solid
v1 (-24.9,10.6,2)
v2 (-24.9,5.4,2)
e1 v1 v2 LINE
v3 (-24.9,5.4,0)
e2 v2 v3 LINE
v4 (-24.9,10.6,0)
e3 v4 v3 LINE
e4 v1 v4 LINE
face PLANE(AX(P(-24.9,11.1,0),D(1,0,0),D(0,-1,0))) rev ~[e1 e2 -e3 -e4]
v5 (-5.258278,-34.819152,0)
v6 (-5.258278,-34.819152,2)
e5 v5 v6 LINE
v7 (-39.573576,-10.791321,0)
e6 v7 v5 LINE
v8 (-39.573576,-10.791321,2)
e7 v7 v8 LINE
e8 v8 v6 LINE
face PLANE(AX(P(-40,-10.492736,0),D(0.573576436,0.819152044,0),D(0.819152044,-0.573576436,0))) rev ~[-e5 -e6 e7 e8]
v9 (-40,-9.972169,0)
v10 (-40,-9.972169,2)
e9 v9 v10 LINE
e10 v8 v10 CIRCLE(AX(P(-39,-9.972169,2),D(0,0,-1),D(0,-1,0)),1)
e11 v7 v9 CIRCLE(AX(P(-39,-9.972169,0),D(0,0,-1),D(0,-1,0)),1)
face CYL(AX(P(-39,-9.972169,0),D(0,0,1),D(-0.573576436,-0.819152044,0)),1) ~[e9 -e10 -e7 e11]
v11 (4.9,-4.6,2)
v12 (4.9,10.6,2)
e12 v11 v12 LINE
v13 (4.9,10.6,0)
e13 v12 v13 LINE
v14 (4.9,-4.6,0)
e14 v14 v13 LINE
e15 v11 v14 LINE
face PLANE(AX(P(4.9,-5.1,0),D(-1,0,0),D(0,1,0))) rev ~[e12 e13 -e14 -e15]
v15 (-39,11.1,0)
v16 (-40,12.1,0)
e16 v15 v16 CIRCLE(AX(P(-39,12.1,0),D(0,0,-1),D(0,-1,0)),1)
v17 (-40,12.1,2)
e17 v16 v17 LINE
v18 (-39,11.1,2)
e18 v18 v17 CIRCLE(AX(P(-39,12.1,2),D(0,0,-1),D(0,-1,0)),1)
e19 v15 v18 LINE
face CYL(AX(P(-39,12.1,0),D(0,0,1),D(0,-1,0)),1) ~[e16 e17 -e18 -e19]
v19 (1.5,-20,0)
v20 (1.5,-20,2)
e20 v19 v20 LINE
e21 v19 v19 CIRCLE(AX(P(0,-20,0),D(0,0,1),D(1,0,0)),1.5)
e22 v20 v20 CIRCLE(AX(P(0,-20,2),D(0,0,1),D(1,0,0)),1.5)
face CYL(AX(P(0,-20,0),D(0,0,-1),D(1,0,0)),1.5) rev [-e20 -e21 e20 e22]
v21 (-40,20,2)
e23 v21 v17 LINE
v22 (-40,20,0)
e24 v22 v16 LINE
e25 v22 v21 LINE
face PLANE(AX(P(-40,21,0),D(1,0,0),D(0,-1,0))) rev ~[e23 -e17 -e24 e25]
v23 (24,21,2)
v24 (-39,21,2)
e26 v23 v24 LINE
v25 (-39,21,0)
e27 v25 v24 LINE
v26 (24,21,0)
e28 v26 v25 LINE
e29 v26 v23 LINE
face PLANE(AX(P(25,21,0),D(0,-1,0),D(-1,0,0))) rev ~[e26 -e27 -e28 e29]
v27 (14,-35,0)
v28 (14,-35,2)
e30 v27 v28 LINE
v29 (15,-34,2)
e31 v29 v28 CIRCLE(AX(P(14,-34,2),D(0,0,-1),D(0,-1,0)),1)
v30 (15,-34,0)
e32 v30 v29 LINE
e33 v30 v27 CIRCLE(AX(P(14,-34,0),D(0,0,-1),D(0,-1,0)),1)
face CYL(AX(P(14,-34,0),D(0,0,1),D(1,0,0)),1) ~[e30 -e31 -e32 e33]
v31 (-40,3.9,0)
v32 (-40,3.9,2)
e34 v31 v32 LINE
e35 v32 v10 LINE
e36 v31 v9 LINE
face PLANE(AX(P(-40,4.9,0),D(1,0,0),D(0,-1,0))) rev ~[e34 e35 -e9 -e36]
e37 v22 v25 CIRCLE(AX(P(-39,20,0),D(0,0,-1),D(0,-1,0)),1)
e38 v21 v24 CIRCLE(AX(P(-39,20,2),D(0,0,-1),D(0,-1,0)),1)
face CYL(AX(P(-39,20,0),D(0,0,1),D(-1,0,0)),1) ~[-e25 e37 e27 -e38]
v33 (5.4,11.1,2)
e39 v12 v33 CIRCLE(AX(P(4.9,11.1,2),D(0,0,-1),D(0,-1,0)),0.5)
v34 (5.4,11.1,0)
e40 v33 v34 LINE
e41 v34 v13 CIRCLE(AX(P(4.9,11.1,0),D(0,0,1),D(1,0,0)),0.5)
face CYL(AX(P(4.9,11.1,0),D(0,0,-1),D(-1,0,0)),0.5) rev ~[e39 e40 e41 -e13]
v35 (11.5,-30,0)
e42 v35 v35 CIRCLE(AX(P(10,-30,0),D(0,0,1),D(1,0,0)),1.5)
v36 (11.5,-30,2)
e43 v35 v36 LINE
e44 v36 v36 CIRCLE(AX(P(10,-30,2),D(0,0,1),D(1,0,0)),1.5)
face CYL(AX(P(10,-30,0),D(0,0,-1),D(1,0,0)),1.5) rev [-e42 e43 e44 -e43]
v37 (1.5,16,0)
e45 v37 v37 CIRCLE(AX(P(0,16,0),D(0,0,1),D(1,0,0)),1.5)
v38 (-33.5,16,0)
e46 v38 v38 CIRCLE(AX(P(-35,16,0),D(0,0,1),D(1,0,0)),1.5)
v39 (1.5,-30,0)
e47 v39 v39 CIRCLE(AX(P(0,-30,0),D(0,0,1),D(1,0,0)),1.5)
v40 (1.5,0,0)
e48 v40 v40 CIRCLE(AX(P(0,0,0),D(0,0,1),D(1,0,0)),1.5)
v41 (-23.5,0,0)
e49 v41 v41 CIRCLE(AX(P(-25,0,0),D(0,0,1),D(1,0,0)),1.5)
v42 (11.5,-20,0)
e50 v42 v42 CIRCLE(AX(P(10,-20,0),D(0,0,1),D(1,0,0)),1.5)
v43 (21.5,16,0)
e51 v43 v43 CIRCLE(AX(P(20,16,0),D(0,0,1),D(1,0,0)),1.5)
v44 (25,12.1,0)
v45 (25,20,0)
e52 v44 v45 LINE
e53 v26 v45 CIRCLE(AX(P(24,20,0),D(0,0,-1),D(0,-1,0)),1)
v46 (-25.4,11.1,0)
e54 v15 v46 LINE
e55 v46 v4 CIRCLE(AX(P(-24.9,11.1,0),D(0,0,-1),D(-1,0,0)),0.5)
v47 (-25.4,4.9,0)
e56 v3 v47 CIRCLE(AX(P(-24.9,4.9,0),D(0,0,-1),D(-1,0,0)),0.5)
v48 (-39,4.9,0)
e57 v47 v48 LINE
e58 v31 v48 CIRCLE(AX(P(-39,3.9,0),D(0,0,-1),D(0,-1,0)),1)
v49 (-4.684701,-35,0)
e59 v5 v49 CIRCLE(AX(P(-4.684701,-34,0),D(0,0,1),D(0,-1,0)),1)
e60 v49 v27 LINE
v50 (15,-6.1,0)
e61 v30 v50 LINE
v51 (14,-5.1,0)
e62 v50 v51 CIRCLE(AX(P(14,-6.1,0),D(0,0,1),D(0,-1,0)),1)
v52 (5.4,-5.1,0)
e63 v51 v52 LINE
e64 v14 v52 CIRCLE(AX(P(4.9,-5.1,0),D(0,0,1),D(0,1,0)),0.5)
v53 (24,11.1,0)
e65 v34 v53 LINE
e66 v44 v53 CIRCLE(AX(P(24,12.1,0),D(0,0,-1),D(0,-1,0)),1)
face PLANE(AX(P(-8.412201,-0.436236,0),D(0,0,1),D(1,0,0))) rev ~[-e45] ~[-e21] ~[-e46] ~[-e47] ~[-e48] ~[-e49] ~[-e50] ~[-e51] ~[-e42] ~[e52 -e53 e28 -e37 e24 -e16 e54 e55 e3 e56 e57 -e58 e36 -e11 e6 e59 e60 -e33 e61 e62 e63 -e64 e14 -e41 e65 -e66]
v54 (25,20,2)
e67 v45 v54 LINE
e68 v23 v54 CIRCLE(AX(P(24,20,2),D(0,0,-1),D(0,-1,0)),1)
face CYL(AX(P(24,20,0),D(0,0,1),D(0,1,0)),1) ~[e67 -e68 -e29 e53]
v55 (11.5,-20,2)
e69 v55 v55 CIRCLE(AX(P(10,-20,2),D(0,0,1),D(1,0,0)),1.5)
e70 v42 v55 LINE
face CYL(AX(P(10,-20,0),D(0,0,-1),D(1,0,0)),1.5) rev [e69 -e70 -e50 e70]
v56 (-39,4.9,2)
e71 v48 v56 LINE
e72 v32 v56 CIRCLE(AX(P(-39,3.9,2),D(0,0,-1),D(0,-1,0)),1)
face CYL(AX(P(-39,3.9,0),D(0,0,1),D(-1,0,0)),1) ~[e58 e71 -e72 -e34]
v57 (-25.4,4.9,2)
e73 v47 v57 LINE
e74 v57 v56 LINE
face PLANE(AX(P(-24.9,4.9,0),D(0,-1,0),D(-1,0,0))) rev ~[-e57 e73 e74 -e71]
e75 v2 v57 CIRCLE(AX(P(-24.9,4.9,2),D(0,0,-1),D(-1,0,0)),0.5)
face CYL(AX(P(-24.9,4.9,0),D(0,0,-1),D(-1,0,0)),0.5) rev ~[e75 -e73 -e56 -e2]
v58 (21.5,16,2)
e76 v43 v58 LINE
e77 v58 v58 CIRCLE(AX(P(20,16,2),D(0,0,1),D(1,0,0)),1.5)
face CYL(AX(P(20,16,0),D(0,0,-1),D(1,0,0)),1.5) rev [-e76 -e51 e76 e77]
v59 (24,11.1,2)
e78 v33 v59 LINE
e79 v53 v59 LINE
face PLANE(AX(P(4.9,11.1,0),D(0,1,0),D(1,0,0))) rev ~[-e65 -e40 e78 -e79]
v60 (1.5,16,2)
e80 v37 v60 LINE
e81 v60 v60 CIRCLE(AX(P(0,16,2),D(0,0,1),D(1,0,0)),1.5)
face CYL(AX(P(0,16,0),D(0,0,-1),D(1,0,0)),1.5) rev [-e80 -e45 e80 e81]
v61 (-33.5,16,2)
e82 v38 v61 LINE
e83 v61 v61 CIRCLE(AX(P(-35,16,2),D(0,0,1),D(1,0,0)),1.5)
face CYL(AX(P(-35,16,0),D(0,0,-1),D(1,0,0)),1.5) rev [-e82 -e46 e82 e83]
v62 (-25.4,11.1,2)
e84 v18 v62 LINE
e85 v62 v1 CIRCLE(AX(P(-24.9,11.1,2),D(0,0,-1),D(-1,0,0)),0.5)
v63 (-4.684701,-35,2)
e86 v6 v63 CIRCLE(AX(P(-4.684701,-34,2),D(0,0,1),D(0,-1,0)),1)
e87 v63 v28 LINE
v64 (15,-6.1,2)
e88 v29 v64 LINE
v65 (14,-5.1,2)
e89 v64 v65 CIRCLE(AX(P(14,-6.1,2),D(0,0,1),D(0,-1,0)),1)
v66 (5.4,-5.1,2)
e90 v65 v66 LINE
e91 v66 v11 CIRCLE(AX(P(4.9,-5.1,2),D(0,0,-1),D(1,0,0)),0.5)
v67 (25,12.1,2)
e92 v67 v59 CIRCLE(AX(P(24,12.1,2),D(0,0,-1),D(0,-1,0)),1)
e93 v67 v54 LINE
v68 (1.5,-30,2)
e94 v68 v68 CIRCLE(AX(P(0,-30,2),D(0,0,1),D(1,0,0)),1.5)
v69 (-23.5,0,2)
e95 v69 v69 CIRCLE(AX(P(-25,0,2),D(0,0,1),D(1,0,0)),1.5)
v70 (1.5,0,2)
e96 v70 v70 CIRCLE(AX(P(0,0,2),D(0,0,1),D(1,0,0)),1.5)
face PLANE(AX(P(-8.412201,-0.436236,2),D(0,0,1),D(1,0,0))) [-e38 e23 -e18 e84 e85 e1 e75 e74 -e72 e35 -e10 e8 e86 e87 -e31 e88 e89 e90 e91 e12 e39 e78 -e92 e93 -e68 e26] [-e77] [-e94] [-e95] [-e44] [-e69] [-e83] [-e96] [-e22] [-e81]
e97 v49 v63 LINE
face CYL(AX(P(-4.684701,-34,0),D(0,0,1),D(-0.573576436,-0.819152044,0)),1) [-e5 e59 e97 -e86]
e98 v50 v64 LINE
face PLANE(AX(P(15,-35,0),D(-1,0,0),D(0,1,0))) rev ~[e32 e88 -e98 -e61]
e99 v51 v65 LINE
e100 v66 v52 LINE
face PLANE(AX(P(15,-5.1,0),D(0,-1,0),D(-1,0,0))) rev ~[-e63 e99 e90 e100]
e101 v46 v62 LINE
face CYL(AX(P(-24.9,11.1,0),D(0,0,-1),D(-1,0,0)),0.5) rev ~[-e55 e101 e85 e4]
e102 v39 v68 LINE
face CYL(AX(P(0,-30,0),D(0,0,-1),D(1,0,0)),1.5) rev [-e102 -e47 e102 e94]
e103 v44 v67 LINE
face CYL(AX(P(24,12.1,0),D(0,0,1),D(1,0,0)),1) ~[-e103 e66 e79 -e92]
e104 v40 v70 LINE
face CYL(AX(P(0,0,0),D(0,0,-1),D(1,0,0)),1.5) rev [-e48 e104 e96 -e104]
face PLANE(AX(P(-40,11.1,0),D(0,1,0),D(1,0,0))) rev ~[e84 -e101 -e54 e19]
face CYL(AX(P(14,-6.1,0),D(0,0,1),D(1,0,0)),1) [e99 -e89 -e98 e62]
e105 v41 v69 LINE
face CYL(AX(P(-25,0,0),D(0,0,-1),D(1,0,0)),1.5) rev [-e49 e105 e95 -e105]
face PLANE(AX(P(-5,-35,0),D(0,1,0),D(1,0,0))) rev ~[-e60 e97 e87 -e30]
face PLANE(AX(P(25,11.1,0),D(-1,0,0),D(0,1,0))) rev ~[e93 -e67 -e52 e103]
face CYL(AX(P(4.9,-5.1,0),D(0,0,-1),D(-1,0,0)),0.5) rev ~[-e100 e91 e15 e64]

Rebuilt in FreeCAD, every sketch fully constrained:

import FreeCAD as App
import Part
import Sketcher
Q = App.Units.Quantity


def edges_at(feature, points):
    """Names of the edges that pass closest to the given points."""
    edges = feature.Shape.Edges
    near = lambda p: min(range(len(edges)), key=lambda i: edges[i].distToShape(Part.Vertex(*p))[0])
    return sorted({f"Edge{near(p) + 1}" for p in points})

doc = App.newDocument("Part")
body = doc.addObject("PartDesign::Body", "Body")

# Sketch on XY plane
sketch1 = body.newObject("Sketcher::SketchObject", "Sketch")
sketch1.AttachmentSupport = (doc.getObject("XY_Plane"), [""])
sketch1.MapMode = "FlatFace"
sketch1.addGeometry([
    Part.LineSegment(App.Vector(15, -35, 0), App.Vector(15, -5.1, 0)),  # 0
    Part.LineSegment(App.Vector(15, -5.1, 0), App.Vector(4.9, -5.1, 0)),  # 1
    Part.LineSegment(App.Vector(4.9, -5.1, 0), App.Vector(4.9, 11.1, 0)),  # 2
    Part.LineSegment(App.Vector(4.9, 11.1, 0), App.Vector(25, 11.1, 0)),  # 3
    Part.LineSegment(App.Vector(25, 11.1, 0), App.Vector(25, 21, 0)),  # 4
    Part.LineSegment(App.Vector(25, 21, 0), App.Vector(-40, 21, 0)),  # 5
    Part.LineSegment(App.Vector(-40, 21, 0), App.Vector(-40, 11.1, 0)),  # 6
    Part.LineSegment(App.Vector(-40, 11.1, 0), App.Vector(-24.9, 11.1, 0)),  # 7
    Part.LineSegment(App.Vector(-24.9, 11.1, 0), App.Vector(-24.9, 4.9, 0)),  # 8
    Part.LineSegment(App.Vector(-24.9, 4.9, 0), App.Vector(-40, 4.9, 0)),  # 9
    Part.LineSegment(App.Vector(-40, 4.9, 0), App.Vector(-40, -10.492736, 0)),  # 10
    Part.LineSegment(App.Vector(-40, -10.492736, 0), App.Vector(-5, -35, 0)),  # 11
    Part.LineSegment(App.Vector(-5, -35, 0), App.Vector(15, -35, 0)),  # 12
    Part.Circle(App.Vector(0, -30, 0), App.Vector(0, 0, 1), 1.5),  # 13
    Part.Circle(App.Vector(0, -20, 0), App.Vector(0, 0, 1), 1.5),  # 14
    Part.Circle(App.Vector(10, -30, 0), App.Vector(0, 0, 1), 1.5),  # 15
    Part.Circle(App.Vector(10, -20, 0), App.Vector(0, 0, 1), 1.5),  # 16
    Part.Circle(App.Vector(-25, 0, 0), App.Vector(0, 0, 1), 1.5),  # 17
    Part.Circle(App.Vector(-35, 16, 0), App.Vector(0, 0, 1), 1.5),  # 18
    Part.Circle(App.Vector(0, 0, 0), App.Vector(0, 0, 1), 1.5),  # 19
    Part.Circle(App.Vector(0, 16, 0), App.Vector(0, 0, 1), 1.5),  # 20
    Part.Circle(App.Vector(20, 16, 0), App.Vector(0, 0, 1), 1.5),  # 21
], False)
sketch1.addConstraint([
    Sketcher.Constraint("Coincident", 0, 2, 1, 1),
    Sketcher.Constraint("Coincident", 1, 2, 2, 1),
    Sketcher.Constraint("Coincident", 2, 2, 3, 1),
    Sketcher.Constraint("Coincident", 3, 2, 4, 1),
    Sketcher.Constraint("Coincident", 4, 2, 5, 1),
    Sketcher.Constraint("Coincident", 5, 2, 6, 1),
    Sketcher.Constraint("Coincident", 6, 2, 7, 1),
    Sketcher.Constraint("Coincident", 7, 2, 8, 1),
    Sketcher.Constraint("Coincident", 8, 2, 9, 1),
    Sketcher.Constraint("Coincident", 9, 2, 10, 1),
    Sketcher.Constraint("Coincident", 10, 2, 11, 1),
    Sketcher.Constraint("Coincident", 11, 2, 12, 1),
    Sketcher.Constraint("Coincident", 12, 2, 0, 1),
    Sketcher.Constraint("Vertical", 0),
    Sketcher.Constraint("Horizontal", 1),
    Sketcher.Constraint("Vertical", 2),
    Sketcher.Constraint("Horizontal", 3),
    Sketcher.Constraint("Vertical", 4),
    Sketcher.Constraint("Horizontal", 5),
    Sketcher.Constraint("Vertical", 6),
    Sketcher.Constraint("Horizontal", 7),
    Sketcher.Constraint("Vertical", 8),
    Sketcher.Constraint("Horizontal", 9),
    Sketcher.Constraint("Vertical", 10),
    Sketcher.Constraint("Horizontal", 12),
    Sketcher.Constraint("Coincident", 19, 3, -1, 1),
    Sketcher.Constraint("Equal", 13, 14),
    Sketcher.Constraint("Equal", 14, 15),
    Sketcher.Constraint("Equal", 15, 16),
    Sketcher.Constraint("Equal", 16, 17),
    Sketcher.Constraint("Equal", 17, 18),
    Sketcher.Constraint("Equal", 18, 19),
    Sketcher.Constraint("Equal", 19, 20),
    Sketcher.Constraint("Equal", 20, 21),
    Sketcher.Constraint("PointOnObject", 13, 3, -2),
    Sketcher.Constraint("PointOnObject", 14, 3, -2),
    Sketcher.Constraint("PointOnObject", 17, 3, -1),
    Sketcher.Constraint("PointOnObject", 20, 3, -2),
    Sketcher.Constraint("Horizontal", 13, 3, 15, 3),
    Sketcher.Constraint("Horizontal", 14, 3, 16, 3),
    Sketcher.Constraint("Horizontal", 18, 3, 20, 3),
    Sketcher.Constraint("Horizontal", 20, 3, 21, 3),
    Sketcher.Constraint("Horizontal", 3, 2, 6, 2),
    Sketcher.Constraint("Vertical", 15, 3, 16, 3),
    Sketcher.Constraint("Vertical", 6, 2, 9, 2),
    Sketcher.Constraint("Diameter", 13, Q("3 mm")),
    Sketcher.Constraint("DistanceX", 5, 2, 5, 1, Q("65 mm")),
    Sketcher.Constraint("DistanceX", 12, 1, 12, 2, Q("20 mm")),
    Sketcher.Constraint("Angle", 11, Q("-35 deg")),
    Sketcher.Constraint("DistanceX", 1, 2, 1, 1, Q("10.1 mm")),
    Sketcher.Constraint("DistanceX", 3, 1, 3, 2, Q("20.1 mm")),
    Sketcher.Constraint("DistanceX", 7, 1, 7, 2, Q("15.1 mm")),
    Sketcher.Constraint("DistanceY", 0, 1, 0, 2, Q("29.9 mm")),
    Sketcher.Constraint("DistanceY", 2, 1, 2, 2, Q("16.2 mm")),
    Sketcher.Constraint("DistanceY", 4, 1, 4, 2, Q("9.9 mm")),
    Sketcher.Constraint("DistanceY", 8, 2, 8, 1, Q("6.2 mm")),
    Sketcher.Constraint("DistanceY", 13, 3, -1, 1, Q("30 mm")),
    Sketcher.Constraint("DistanceY", 14, 3, -1, 1, Q("20 mm")),
    Sketcher.Constraint("DistanceX", -1, 1, 15, 3, Q("10 mm")),
    Sketcher.Constraint("DistanceX", 17, 3, -1, 1, Q("25 mm")),
    Sketcher.Constraint("DistanceX", 18, 3, -1, 1, Q("35 mm")),
    Sketcher.Constraint("DistanceY", -1, 1, 18, 3, Q("16 mm")),
    Sketcher.Constraint("DistanceX", -1, 1, 21, 3, Q("20 mm")),
    Sketcher.Constraint("DistanceX", -1, 1, 0, 2, Q("15 mm")),
    Sketcher.Constraint("DistanceY", -1, 1, 4, 2, Q("21 mm")),
])
pad1 = body.newObject("PartDesign::Pad", "Pad")
pad1.Profile = sketch1
pad1.Length = 2

# Sketch on XY plane
sketch2 = body.newObject("Sketcher::SketchObject", "Sketch001")
sketch2.AttachmentSupport = (doc.getObject("XY_Plane"), [""])
sketch2.MapMode = "FlatFace"
sketch2.addGeometry([
    Part.Circle(App.Vector(4.9, 11.1, 0), App.Vector(0, 0, 1), 0.5),
    Part.Circle(App.Vector(4.9, -5.1, 0), App.Vector(0, 0, 1), 0.5),
    Part.Circle(App.Vector(-24.9, 11.1, 0), App.Vector(0, 0, 1), 0.5),
    Part.Circle(App.Vector(-24.9, 4.9, 0), App.Vector(0, 0, 1), 0.5),
], False)
sketch2.addConstraint([
    Sketcher.Constraint("Equal", 0, 1),
    Sketcher.Constraint("Equal", 1, 2),
    Sketcher.Constraint("Equal", 2, 3),
    Sketcher.Constraint("Horizontal", 0, 3, 2, 3),
    Sketcher.Constraint("Vertical", 0, 3, 1, 3),
    Sketcher.Constraint("Vertical", 2, 3, 3, 3),
    Sketcher.Constraint("Diameter", 0, Q("1 mm")),
    Sketcher.Constraint("DistanceY", 1, 3, 3, 3, Q("10 mm")),
    Sketcher.Constraint("DistanceX", -1, 1, 0, 3, Q("4.9 mm")),
    Sketcher.Constraint("DistanceY", -1, 1, 0, 3, Q("11.1 mm")),
    Sketcher.Constraint("DistanceY", 1, 3, -1, 1, Q("5.1 mm")),
    Sketcher.Constraint("DistanceX", 2, 3, -1, 1, Q("24.9 mm")),
])
pocket1 = body.newObject("PartDesign::Pocket", "Pocket")
pocket1.Profile = sketch2
pocket1.Length = 10
pocket1.Reversed = True
doc.recompute()

fillet = body.newObject("PartDesign::Fillet", "Fillet")
fillet.Base = (pocket1, edges_at(pocket1, [
    (-40, 11.1, 1),
    (-40, 21, 1),
    (25, 21, 1),
    (25, 11.1, 1),
    (15, -5.1, 1),
    (15, -35, 1),
    (-5, -35, 1),
    (-40, -10.493, 1),
    (-40, 4.9, 1),
]))
fillet.Radius = 1

doc.recompute()
